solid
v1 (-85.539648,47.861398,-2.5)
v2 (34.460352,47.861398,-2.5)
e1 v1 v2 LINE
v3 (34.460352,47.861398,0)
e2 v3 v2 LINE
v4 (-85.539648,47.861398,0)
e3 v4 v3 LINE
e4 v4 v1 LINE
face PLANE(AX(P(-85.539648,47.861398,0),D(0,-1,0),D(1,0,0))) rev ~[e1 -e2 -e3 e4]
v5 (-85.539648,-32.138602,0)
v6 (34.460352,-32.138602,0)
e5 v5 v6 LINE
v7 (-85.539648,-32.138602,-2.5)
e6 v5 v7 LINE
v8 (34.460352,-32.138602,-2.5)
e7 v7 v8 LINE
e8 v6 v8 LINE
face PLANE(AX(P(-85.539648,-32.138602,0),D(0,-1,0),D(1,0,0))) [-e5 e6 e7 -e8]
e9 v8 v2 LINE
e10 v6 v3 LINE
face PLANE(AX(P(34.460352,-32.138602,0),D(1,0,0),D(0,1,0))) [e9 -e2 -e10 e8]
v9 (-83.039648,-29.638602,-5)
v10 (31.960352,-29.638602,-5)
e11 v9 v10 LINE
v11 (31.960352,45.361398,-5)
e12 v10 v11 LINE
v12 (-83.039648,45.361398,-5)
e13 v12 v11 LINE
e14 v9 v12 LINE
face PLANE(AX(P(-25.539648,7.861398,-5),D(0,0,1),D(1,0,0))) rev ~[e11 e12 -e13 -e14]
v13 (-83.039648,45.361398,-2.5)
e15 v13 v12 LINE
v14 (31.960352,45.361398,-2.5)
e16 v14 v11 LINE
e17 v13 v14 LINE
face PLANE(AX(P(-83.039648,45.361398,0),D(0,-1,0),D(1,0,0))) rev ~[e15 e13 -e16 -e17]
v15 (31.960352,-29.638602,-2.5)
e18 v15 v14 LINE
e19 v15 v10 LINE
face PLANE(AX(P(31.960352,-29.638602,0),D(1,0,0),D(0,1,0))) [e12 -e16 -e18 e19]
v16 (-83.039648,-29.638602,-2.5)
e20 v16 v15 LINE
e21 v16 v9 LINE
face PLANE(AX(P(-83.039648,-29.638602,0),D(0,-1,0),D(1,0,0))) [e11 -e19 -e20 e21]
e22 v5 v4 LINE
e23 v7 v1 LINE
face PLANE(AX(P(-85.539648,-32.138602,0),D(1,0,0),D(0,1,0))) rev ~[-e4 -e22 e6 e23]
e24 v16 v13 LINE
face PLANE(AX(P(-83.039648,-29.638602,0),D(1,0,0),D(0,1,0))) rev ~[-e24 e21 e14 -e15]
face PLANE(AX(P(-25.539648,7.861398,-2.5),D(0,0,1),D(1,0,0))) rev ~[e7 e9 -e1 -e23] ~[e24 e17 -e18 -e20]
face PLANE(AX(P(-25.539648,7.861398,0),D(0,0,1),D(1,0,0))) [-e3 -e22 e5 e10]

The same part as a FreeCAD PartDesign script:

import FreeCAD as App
import Part
import Sketcher

doc = App.newDocument("Part")
body = doc.addObject("PartDesign::Body", "Body")

# Sketch on XY plane
sketch1 = doc.addObject("Sketcher::SketchObject", "Sketch")
body.addObject(sketch1)
sketch1.AttachmentSupport = (doc.XY_Plane, [""])
sketch1.MapMode = "FlatFace"
sketch1.addGeometry([
    Part.LineSegment(App.Vector(-86, 48, 0), App.Vector(-86, -32, 0)),  # 0
    Part.LineSegment(App.Vector(-86, -32, 0), App.Vector(34, -32, 0)),  # 1
    Part.LineSegment(App.Vector(34, -32, 0), App.Vector(34, 48, 0)),  # 2
    Part.LineSegment(App.Vector(34, 48, 0), App.Vector(-86, 48, 0)),  # 3
    Part.LineSegment(App.Vector(32, -30, 0), App.Vector(-83, -30, 0)),  # 4
    Part.LineSegment(App.Vector(-83, -30, 0), App.Vector(-83, 45, 0)),  # 5
    Part.LineSegment(App.Vector(-83, 45, 0), App.Vector(32, 45, 0)),  # 6
    Part.LineSegment(App.Vector(32, 45, 0), App.Vector(32, -30, 0)),  # 7
], False)
sketch1.addConstraint([
    Sketcher.Constraint("Coincident", 0, 2, 1, 1),
    Sketcher.Constraint("Coincident", 1, 2, 2, 1),
    Sketcher.Constraint("Coincident", 2, 2, 3, 1),
    Sketcher.Constraint("Coincident", 3, 2, 0, 1),
    Sketcher.Constraint("Coincident", 4, 2, 5, 1),
    Sketcher.Constraint("Coincident", 5, 2, 6, 1),
    Sketcher.Constraint("Coincident", 6, 2, 7, 1),
    Sketcher.Constraint("Coincident", 7, 2, 4, 1),
    Sketcher.Constraint("Vertical", 0),
    Sketcher.Constraint("Horizontal", 1),
    Sketcher.Constraint("Vertical", 2),
    Sketcher.Constraint("Horizontal", 3),
    Sketcher.Constraint("Horizontal", 4),
    Sketcher.Constraint("Vertical", 5),
    Sketcher.Constraint("Horizontal", 6),
    Sketcher.Constraint("Vertical", 7),
    Sketcher.Constraint("DistanceX", 1, 1, 1, 2, 120.0),
    Sketcher.Constraint("DistanceX", 4, 2, 4, 1, 115.0),
    Sketcher.Constraint("DistanceY", 0, 2, 0, 1, 80.0),
    Sketcher.Constraint("DistanceY", 5, 1, 5, 2, 75.0),
    Sketcher.Constraint("DistanceX", 0, 2, 4, 2, 2.5),
    Sketcher.Constraint("DistanceY", 0, 2, 4, 2, 2.5),
    Sketcher.Constraint("DistanceY", 4, 2, -1, 1, 29.638602),
    Sketcher.Constraint("DistanceX", 0, 2, -1, 1, 85.539648),
])
pad1 = doc.addObject("PartDesign::Pad", "Pad")
body.addObject(pad1)
pad1.Profile = sketch1
pad1.Length = 2.5
pad1.Reversed = True

# Sketch on XY plane
sketch2 = doc.addObject("Sketcher::SketchObject", "Sketch001")
body.addObject(sketch2)
sketch2.AttachmentSupport = (doc.XY_Plane, [""])
sketch2.MapMode = "FlatFace"
sketch2.addGeometry([
    Part.LineSegment(App.Vector(-83, 45, 0), App.Vector(-83, -30, 0)),
    Part.LineSegment(App.Vector(-83, -30, 0), App.Vector(32, -30, 0)),
    Part.LineSegment(App.Vector(32, -30, 0), App.Vector(32, 45, 0)),
    Part.LineSegment(App.Vector(32, 45, 0), App.Vector(-83, 45, 0)),
], False)
sketch2.addConstraint([
    Sketcher.Constraint("Coincident", 0, 2, 1, 1),
    Sketcher.Constraint("Coincident", 1, 2, 2, 1),
    Sketcher.Constraint("Coincident", 2, 2, 3, 1),
    Sketcher.Constraint("Coincident", 3, 2, 0, 1),
    Sketcher.Constraint("Vertical", 0),
    Sketcher.Constraint("Horizontal", 1),
    Sketcher.Constraint("Vertical", 2),
    Sketcher.Constraint("Horizontal", 3),
    Sketcher.Constraint("DistanceX", 1, 1, 1, 2, 115.0),
    Sketcher.Constraint("DistanceY", 0, 2, 0, 1, 75.0),
    Sketcher.Constraint("DistanceY", 0, 2, -1, 1, 29.638602),
    Sketcher.Constraint("DistanceX", 0, 2, -1, 1, 83.039648),
])
pad2 = doc.addObject("PartDesign::Pad", "Pad001")
body.addObject(pad2)
pad2.Profile = sketch2
pad2.Length = 5
pad2.Reversed = True

doc.recompute()
